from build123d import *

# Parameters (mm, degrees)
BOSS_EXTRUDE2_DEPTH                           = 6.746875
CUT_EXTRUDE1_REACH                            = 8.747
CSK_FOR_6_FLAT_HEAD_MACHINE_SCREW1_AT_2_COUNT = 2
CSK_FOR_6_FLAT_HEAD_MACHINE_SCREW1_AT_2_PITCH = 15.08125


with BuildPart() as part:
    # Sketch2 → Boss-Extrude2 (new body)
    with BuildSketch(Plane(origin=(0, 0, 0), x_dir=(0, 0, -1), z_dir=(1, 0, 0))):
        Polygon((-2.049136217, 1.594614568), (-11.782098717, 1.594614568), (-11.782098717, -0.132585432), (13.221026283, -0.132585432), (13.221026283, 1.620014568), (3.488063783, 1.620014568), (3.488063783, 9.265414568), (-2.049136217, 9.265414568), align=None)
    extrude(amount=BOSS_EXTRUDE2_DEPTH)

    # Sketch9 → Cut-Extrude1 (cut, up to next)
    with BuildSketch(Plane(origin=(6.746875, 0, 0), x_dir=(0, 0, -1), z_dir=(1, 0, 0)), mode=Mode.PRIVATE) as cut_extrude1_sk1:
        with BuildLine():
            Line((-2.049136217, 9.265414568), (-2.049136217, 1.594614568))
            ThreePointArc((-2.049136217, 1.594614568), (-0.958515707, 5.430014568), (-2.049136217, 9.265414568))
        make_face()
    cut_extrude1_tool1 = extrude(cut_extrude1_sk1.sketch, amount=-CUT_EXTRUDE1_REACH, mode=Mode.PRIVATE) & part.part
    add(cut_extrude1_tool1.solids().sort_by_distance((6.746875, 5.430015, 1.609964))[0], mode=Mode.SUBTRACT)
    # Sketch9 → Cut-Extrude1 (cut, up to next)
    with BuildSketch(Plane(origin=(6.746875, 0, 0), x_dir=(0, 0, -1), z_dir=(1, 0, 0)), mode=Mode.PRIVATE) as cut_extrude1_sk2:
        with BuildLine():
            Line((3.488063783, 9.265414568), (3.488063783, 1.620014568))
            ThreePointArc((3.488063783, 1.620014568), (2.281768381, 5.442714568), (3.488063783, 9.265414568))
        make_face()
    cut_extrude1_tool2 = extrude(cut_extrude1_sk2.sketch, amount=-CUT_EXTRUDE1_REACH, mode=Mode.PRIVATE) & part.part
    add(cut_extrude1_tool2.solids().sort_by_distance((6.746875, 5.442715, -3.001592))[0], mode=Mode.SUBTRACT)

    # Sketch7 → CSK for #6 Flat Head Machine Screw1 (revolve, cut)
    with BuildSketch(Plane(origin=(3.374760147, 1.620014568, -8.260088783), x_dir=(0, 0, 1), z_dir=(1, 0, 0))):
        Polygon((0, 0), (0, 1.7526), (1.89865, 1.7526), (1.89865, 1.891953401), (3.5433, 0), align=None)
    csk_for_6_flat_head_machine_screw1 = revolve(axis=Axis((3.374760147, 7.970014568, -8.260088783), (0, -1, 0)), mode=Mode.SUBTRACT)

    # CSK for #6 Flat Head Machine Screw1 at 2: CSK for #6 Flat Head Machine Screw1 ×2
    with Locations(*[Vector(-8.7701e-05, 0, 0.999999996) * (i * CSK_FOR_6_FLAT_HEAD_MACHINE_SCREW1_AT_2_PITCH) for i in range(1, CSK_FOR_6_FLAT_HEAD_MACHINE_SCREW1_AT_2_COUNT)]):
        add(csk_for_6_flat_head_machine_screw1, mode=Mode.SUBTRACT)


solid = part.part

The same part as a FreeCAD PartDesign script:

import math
import FreeCAD as App
import Part
import Sketcher
from FreeCAD import Vector
Q = App.Units.Quantity

doc = App.newDocument("Part")
body = doc.addObject("PartDesign::Body", "Body")

# Sketch on YZ plane
sketch1 = body.newObject("Sketcher::SketchObject", "Sketch")
sketch1.AttachmentSupport = (doc.getObject("YZ_Plane"), [""])
sketch1.MapMode = "FlatFace"
sketch1.addGeometry([
    Part.LineSegment(Vector(1.6, 2, 0), Vector(1.6, 11.8, 0)),  # 0
    Part.LineSegment(Vector(1.6, 11.8, 0), Vector(-0.1, 11.8, 0)),  # 1
    Part.LineSegment(Vector(-0.1, 11.8, 0), Vector(-0.1, -13.2, 0)),  # 2
    Part.LineSegment(Vector(-0.1, -13.2, 0), Vector(1.6, -13.2, 0)),  # 3
    Part.LineSegment(Vector(1.6, -13.2, 0), Vector(1.6, -3.5, 0)),  # 4
    Part.LineSegment(Vector(1.6, -3.5, 0), Vector(9.3, -3.5, 0)),  # 5
    Part.LineSegment(Vector(9.3, -3.5, 0), Vector(9.3, 2, 0)),  # 6
    Part.LineSegment(Vector(9.3, 2, 0), Vector(1.6, 2, 0)),  # 7
], False)
sketch1.addConstraint([
    Sketcher.Constraint("Coincident", 0, 2, 1, 1),
    Sketcher.Constraint("Coincident", 1, 2, 2, 1),
    Sketcher.Constraint("Coincident", 2, 2, 3, 1),
    Sketcher.Constraint("Coincident", 3, 2, 4, 1),
    Sketcher.Constraint("Coincident", 4, 2, 5, 1),
    Sketcher.Constraint("Coincident", 5, 2, 6, 1),
    Sketcher.Constraint("Coincident", 6, 2, 7, 1),
    Sketcher.Constraint("Coincident", 7, 2, 0, 1),
    Sketcher.Constraint("Vertical", 0),
    Sketcher.Constraint("Horizontal", 1),
    Sketcher.Constraint("Vertical", 2),
    Sketcher.Constraint("Horizontal", 3),
    Sketcher.Constraint("Vertical", 4),
    Sketcher.Constraint("Horizontal", 5),
    Sketcher.Constraint("Vertical", 6),
    Sketcher.Constraint("Horizontal", 7),
    Sketcher.Constraint("Equal", 0, 4),
    Sketcher.Constraint("DistanceX", 1, 2, 1, 1, Q("0.068 in")),
    Sketcher.Constraint("DistanceX", 3, 1, 3, 2, Q("0.069 in")),
    Sketcher.Constraint("DistanceX", 5, 1, 5, 2, Q("0.301 in")),
    Sketcher.Constraint("DistanceY", 2, 2, 2, 1, Q("0.984375 in")),
    Sketcher.Constraint("DistanceY", 6, 1, 6, 2, Q("0.218 in")),
    Sketcher.Constraint("DistanceY", -1, 1, 0, 2, 11.782099),
    Sketcher.Constraint("DistanceX", -1, 1, 0, 2, 1.594615),
])
pad1 = body.newObject("PartDesign::Pad", "Pad")
pad1.Profile = sketch1
pad1.Length = Q("0.265625 in")

# Sketch on YZ plane
sketch2 = body.newObject("Sketcher::SketchObject", "Sketch001")
sketch2.AttachmentSupport = (doc.getObject("YZ_Plane"), [""])
sketch2.MapMode = "FlatFace"
sketch2.AttachmentOffset = App.Placement(Vector(0, 0, 0.265625 * 25.4), App.Rotation())
sketch2.addGeometry([
    Part.LineSegment(Vector(9, 2, 0), Vector(2, 2, 0)),
    Part.ArcOfCircle(Part.Circle(Vector(5, 8, 0), Vector(0, 0, 1), 7), math.radians(-122), math.radians(-58)),
], False)
sketch2.addConstraint([
    Sketcher.Constraint("Coincident", 0, 1, 1, 2),
    Sketcher.Constraint("Coincident", 1, 1, 0, 2),
    Sketcher.Constraint("Horizontal", 0),
    Sketcher.Constraint("DistanceX", 0, 2, 0, 1, Q("0.302 in")),
    Sketcher.Constraint("Radius", 1, 7.289312),
    Sketcher.Constraint("DistanceX", -1, 1, 1, 3, 5.430015),
    Sketcher.Constraint("DistanceY", -1, 1, 1, 3, 8.247828),
])
pocket1 = body.newObject("PartDesign::Pocket", "Pocket")
pocket1.Profile = sketch2
pocket1.Type = "UpToFirst"

# Sketch on YZ plane
sketch3 = body.newObject("Sketcher::SketchObject", "Sketch002")
sketch3.AttachmentSupport = (doc.getObject("YZ_Plane"), [""])
sketch3.MapMode = "FlatFace"
sketch3.AttachmentOffset = App.Placement(Vector(0, 0, 0.265625 * 25.4), App.Rotation())
sketch3.addGeometry([
    Part.LineSegment(Vector(2, -3, 0), Vector(9, -3, 0)),
    Part.ArcOfCircle(Part.Circle(Vector(5, -9, 0), Vector(0, 0, 1), 7), math.radians(55), math.radians(125)),
], False)
sketch3.addConstraint([
    Sketcher.Constraint("Coincident", 0, 1, 1, 2),
    Sketcher.Constraint("Coincident", 1, 1, 0, 2),
    Sketcher.Constraint("Horizontal", 0),
    Sketcher.Constraint("DistanceX", 0, 1, 0, 2, Q("0.301 in")),
    Sketcher.Constraint("Radius", 1, 6.660136),
    Sketcher.Constraint("DistanceX", -1, 1, 1, 3, 5.442715),
    Sketcher.Constraint("DistanceY", 1, 3, -1, 1, 8.941905),
])
pocket2 = body.newObject("PartDesign::Pocket", "Pocket001")
pocket2.Profile = sketch3
pocket2.Type = "UpToFirst"

# Sketch on YZ plane
sketch4 = body.newObject("Sketcher::SketchObject", "Sketch003")
sketch4.AttachmentSupport = (doc.getObject("YZ_Plane"), [""])
sketch4.MapMode = "FlatFace"
sketch4.AttachmentOffset = App.Placement(Vector(0, 0, 3.37476), App.Rotation())
sketch4.addGeometry([
    Part.LineSegment(Vector(-0.13, -8.26, 0), Vector(1.62, -8.26, 0)),  # 0
    Part.LineSegment(Vector(1.62, -8.26, 0), Vector(1.62, -4.72, 0)),  # 1
    Part.LineSegment(Vector(1.62, -4.72, 0), Vector(-0.27, -6.36, 0)),  # 2
    Part.LineSegment(Vector(-0.27, -6.36, 0), Vector(-0.13, -6.36, 0)),  # 3
    Part.LineSegment(Vector(-0.13, -6.36, 0), Vector(-0.13, -8.26, 0)),  # 4
], False)
sketch4.addGeometry(Part.LineSegment(Vector(1.62, -8.26, 0), Vector(-0.27, -8.26, 0)), True)  # axis
sketch4.addConstraint([
    Sketcher.Constraint("Coincident", 0, 2, 1, 1),
    Sketcher.Constraint("Coincident", 1, 2, 2, 1),
    Sketcher.Constraint("Coincident", 2, 2, 3, 1),
    Sketcher.Constraint("Coincident", 3, 2, 4, 1),
    Sketcher.Constraint("Coincident", 4, 2, 0, 1),
    Sketcher.Constraint("Horizontal", 0),
    Sketcher.Constraint("Vertical", 1),
    Sketcher.Constraint("Horizontal", 3),
    Sketcher.Constraint("Vertical", 4),
    Sketcher.Constraint("Horizontal", 5),
    Sketcher.Constraint("Coincident", 5, 1, 0, 2),
    Sketcher.Constraint("Vertical", 2, 2, 5, 2),
    Sketcher.Constraint("Angle", 2, Q("-139 deg")),
    Sketcher.Constraint("DistanceX", 0, 1, 0, 2, Q("0.069 in")),
    Sketcher.Constraint("DistanceY", 1, 1, 1, 2, Q("0.1395 in")),
    Sketcher.Constraint("DistanceY", 4, 2, 4, 1, 1.89865),
    Sketcher.Constraint("DistanceY", 0, 2, -1, 1, 8.260089),
    Sketcher.Constraint("DistanceX", 2, 2, -1, 1, 0.271939),
])
groove = body.newObject("PartDesign::Groove", "Groove")
groove.Profile = sketch4
groove.ReferenceAxis = (sketch4, ["Axis0"])
groove.Angle = 360
doc.recompute()

datumline = body.newObject("PartDesign::Line", "DatumLine")
datumline.Placement = App.Placement(Vector(0, 0, 0), App.Rotation(Vector(0, 0, 1), Vector(-0.000087701, 0, 0.999999996)))
linearpattern = body.newObject("PartDesign::LinearPattern", "LinearPattern")
linearpattern.Originals = [groove]
linearpattern.Direction = (datumline, [""])
linearpattern.Mode = "offset"
linearpattern.Offset = Q("0.59375 in")
linearpattern.Occurrences = 2
body.Tip = linearpattern

doc.recompute()
